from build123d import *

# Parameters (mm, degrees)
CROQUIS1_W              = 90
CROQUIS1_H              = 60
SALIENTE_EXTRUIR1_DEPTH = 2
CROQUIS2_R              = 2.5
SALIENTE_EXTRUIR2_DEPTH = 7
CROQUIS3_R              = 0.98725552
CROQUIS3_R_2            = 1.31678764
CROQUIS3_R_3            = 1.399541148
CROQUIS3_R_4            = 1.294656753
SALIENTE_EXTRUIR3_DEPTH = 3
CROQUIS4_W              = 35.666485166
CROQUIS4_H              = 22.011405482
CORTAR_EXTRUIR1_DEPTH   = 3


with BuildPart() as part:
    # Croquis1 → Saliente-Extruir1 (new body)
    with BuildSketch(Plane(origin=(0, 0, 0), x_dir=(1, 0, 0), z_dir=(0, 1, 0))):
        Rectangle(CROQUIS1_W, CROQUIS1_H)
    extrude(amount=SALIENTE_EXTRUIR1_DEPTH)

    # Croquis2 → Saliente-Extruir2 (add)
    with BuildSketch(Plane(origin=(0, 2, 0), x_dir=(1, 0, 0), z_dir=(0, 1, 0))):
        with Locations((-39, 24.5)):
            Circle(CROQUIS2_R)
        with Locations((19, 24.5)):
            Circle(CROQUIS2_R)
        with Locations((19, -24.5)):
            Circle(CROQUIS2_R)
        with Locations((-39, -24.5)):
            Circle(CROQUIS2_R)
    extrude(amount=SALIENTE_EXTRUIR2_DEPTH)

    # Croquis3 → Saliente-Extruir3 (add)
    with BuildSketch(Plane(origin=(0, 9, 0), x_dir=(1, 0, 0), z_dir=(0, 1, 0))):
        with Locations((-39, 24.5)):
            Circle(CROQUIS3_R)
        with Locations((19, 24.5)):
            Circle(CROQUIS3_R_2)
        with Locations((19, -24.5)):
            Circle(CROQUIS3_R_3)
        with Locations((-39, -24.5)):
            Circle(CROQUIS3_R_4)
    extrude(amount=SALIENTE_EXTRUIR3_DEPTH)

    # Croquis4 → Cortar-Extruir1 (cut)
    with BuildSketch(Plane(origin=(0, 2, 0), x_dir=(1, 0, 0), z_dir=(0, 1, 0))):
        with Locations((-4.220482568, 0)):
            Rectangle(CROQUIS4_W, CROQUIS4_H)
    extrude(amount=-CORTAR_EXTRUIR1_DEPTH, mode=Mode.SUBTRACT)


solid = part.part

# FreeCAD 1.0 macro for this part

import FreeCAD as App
import Part
import Sketcher


def add_polygon(sketch, points):
    """Adds a closed chain of lines whose ends are joined by coincident constraints."""
    first, n = sketch.GeometryCount, len(points)
    for a, b in zip(points, points[1:] + points[:1]):
        sketch.addGeometry(Part.LineSegment(App.Vector(*a, 0), App.Vector(*b, 0)), False)
    for i in range(n):
        sketch.addConstraint(Sketcher.Constraint("Coincident", first + i, 2, first + (i + 1) % n, 1))

doc = App.newDocument("Part")
body = doc.addObject("PartDesign::Body", "Body")

sketch1 = body.newObject("Sketcher::SketchObject", "Sketch")
sketch1.AttachmentSupport = (doc.getObject("XZ_Plane"), [""])
sketch1.MapMode = "FlatFace"
add_polygon(sketch1, [(-45, -30), (-45, 30), (45, 30), (45, -30)])
sketch1.addConstraint(Sketcher.Constraint("Vertical", 0))
sketch1.addConstraint(Sketcher.Constraint("Horizontal", 1))
sketch1.addConstraint(Sketcher.Constraint("Vertical", 2))
sketch1.addConstraint(Sketcher.Constraint("Horizontal", 3))
sketch1.addConstraint(Sketcher.Constraint("Symmetric", 0, 2, 2, 2, -1, 1))
sketch1.addConstraint(Sketcher.Constraint("DistanceX", 1, 1, 1, 2, 90.0))
sketch1.addConstraint(Sketcher.Constraint("DistanceY", 0, 1, 0, 2, 60.0))
pad1 = body.newObject("PartDesign::Pad", "Pad")
pad1.Profile = sketch1
pad1.Length = 2
pad1.Reversed = True

sketch2 = body.newObject("Sketcher::SketchObject", "Sketch001")
sketch2.AttachmentSupport = (doc.getObject("XZ_Plane"), [""])
sketch2.MapMode = "FlatFace"
sketch2.AttachmentOffset = App.Placement(App.Vector(0, 0, -2), App.Rotation())
sketch2.addGeometry(Part.Circle(App.Vector(-39, -24.5, 0), App.Vector(0, 0, 1), 2.5), False)
sketch2.addGeometry(Part.Circle(App.Vector(19, -24.5, 0), App.Vector(0, 0, 1), 2.5), False)
sketch2.addGeometry(Part.Circle(App.Vector(19, 24.5, 0), App.Vector(0, 0, 1), 2.5), False)
sketch2.addGeometry(Part.Circle(App.Vector(-39, 24.5, 0), App.Vector(0, 0, 1), 2.5), False)
sketch2.addConstraint(Sketcher.Constraint("Equal", 0, 1))
sketch2.addConstraint(Sketcher.Constraint("Equal", 1, 2))
sketch2.addConstraint(Sketcher.Constraint("Equal", 2, 3))
sketch2.addConstraint(Sketcher.Constraint("Symmetric", 1, 3, 2, 3, -1))
sketch2.addConstraint(Sketcher.Constraint("Symmetric", 0, 3, 3, 3, -1))
sketch2.addConstraint(Sketcher.Constraint("Horizontal", 0, 3, 1, 3))
sketch2.addConstraint(Sketcher.Constraint("Diameter", 0, 5.0))
sketch2.addConstraint(Sketcher.Constraint("DistanceX", 0, 3, -1, 1, 39.0))
sketch2.addConstraint(Sketcher.Constraint("DistanceX", -1, 1, 1, 3, 19.0))
sketch2.addConstraint(Sketcher.Constraint("DistanceY", 1, 3, 2, 3, 49.0))
pad2 = body.newObject("PartDesign::Pad", "Pad001")
pad2.Profile = sketch2
pad2.Length = 7
pad2.Reversed = True

sketch3 = body.newObject("Sketcher::SketchObject", "Sketch002")
sketch3.AttachmentSupport = (doc.getObject("XZ_Plane"), [""])
sketch3.MapMode = "FlatFace"
sketch3.AttachmentOffset = App.Placement(App.Vector(0, 0, -9), App.Rotation())
sketch3.addGeometry(Part.Circle(App.Vector(-39, -24.5, 0), App.Vector(0, 0, 1), 0.987256), False)
sketch3.addGeometry(Part.Circle(App.Vector(19, -24.5, 0), App.Vector(0, 0, 1), 1.316788), False)
sketch3.addGeometry(Part.Circle(App.Vector(19, 24.5, 0), App.Vector(0, 0, 1), 1.399541), False)
sketch3.addGeometry(Part.Circle(App.Vector(-39, 24.5, 0), App.Vector(0, 0, 1), 1.294657), False)
sketch3.addConstraint(Sketcher.Constraint("Symmetric", 1, 3, 2, 3, -1))
sketch3.addConstraint(Sketcher.Constraint("Symmetric", 0, 3, 3, 3, -1))
sketch3.addConstraint(Sketcher.Constraint("Horizontal", 0, 3, 1, 3))
sketch3.addConstraint(Sketcher.Constraint("DistanceX", 0, 3, -1, 1, 39.0))
sketch3.addConstraint(Sketcher.Constraint("DistanceX", -1, 1, 1, 3, 19.0))
sketch3.addConstraint(Sketcher.Constraint("DistanceY", 1, 3, 2, 3, 49.0))
sketch3.addConstraint(Sketcher.Constraint("Diameter", 0, 1.974511))
sketch3.addConstraint(Sketcher.Constraint("Diameter", 1, 2.633575))
sketch3.addConstraint(Sketcher.Constraint("Diameter", 2, 2.799082))
sketch3.addConstraint(Sketcher.Constraint("Diameter", 3, 2.589314))
pad3 = body.newObject("PartDesign::Pad", "Pad002")
pad3.Profile = sketch3
pad3.Length = 3
pad3.Reversed = True

sketch4 = body.newObject("Sketcher::SketchObject", "Sketch003")
sketch4.AttachmentSupport = (doc.getObject("XZ_Plane"), [""])
sketch4.MapMode = "FlatFace"
sketch4.AttachmentOffset = App.Placement(App.Vector(0, 0, -2), App.Rotation())
add_polygon(sketch4, [(-22.053725, -11.005703), (-22.053725, 11.005703), (13.61276, 11.005703), (13.61276, -11.005703)])
sketch4.addConstraint(Sketcher.Constraint("Vertical", 0))
sketch4.addConstraint(Sketcher.Constraint("Horizontal", 1))
sketch4.addConstraint(Sketcher.Constraint("Vertical", 2))
sketch4.addConstraint(Sketcher.Constraint("Horizontal", 3))
sketch4.addConstraint(Sketcher.Constraint("DistanceX", 1, 1, 1, 2, 35.666485))
sketch4.addConstraint(Sketcher.Constraint("DistanceY", 0, 1, 0, 2, 22.011405))
sketch4.addConstraint(Sketcher.Constraint("DistanceX", -1, 1, 1, 2, 13.61276))
sketch4.addConstraint(Sketcher.Constraint("DistanceY", -1, 1, 0, 2, 11.005703))
pocket1 = body.newObject("PartDesign::Pocket", "Pocket")
pocket1.Profile = sketch4
pocket1.Length = 3
pocket1.Reversed = True

doc.recompute()
